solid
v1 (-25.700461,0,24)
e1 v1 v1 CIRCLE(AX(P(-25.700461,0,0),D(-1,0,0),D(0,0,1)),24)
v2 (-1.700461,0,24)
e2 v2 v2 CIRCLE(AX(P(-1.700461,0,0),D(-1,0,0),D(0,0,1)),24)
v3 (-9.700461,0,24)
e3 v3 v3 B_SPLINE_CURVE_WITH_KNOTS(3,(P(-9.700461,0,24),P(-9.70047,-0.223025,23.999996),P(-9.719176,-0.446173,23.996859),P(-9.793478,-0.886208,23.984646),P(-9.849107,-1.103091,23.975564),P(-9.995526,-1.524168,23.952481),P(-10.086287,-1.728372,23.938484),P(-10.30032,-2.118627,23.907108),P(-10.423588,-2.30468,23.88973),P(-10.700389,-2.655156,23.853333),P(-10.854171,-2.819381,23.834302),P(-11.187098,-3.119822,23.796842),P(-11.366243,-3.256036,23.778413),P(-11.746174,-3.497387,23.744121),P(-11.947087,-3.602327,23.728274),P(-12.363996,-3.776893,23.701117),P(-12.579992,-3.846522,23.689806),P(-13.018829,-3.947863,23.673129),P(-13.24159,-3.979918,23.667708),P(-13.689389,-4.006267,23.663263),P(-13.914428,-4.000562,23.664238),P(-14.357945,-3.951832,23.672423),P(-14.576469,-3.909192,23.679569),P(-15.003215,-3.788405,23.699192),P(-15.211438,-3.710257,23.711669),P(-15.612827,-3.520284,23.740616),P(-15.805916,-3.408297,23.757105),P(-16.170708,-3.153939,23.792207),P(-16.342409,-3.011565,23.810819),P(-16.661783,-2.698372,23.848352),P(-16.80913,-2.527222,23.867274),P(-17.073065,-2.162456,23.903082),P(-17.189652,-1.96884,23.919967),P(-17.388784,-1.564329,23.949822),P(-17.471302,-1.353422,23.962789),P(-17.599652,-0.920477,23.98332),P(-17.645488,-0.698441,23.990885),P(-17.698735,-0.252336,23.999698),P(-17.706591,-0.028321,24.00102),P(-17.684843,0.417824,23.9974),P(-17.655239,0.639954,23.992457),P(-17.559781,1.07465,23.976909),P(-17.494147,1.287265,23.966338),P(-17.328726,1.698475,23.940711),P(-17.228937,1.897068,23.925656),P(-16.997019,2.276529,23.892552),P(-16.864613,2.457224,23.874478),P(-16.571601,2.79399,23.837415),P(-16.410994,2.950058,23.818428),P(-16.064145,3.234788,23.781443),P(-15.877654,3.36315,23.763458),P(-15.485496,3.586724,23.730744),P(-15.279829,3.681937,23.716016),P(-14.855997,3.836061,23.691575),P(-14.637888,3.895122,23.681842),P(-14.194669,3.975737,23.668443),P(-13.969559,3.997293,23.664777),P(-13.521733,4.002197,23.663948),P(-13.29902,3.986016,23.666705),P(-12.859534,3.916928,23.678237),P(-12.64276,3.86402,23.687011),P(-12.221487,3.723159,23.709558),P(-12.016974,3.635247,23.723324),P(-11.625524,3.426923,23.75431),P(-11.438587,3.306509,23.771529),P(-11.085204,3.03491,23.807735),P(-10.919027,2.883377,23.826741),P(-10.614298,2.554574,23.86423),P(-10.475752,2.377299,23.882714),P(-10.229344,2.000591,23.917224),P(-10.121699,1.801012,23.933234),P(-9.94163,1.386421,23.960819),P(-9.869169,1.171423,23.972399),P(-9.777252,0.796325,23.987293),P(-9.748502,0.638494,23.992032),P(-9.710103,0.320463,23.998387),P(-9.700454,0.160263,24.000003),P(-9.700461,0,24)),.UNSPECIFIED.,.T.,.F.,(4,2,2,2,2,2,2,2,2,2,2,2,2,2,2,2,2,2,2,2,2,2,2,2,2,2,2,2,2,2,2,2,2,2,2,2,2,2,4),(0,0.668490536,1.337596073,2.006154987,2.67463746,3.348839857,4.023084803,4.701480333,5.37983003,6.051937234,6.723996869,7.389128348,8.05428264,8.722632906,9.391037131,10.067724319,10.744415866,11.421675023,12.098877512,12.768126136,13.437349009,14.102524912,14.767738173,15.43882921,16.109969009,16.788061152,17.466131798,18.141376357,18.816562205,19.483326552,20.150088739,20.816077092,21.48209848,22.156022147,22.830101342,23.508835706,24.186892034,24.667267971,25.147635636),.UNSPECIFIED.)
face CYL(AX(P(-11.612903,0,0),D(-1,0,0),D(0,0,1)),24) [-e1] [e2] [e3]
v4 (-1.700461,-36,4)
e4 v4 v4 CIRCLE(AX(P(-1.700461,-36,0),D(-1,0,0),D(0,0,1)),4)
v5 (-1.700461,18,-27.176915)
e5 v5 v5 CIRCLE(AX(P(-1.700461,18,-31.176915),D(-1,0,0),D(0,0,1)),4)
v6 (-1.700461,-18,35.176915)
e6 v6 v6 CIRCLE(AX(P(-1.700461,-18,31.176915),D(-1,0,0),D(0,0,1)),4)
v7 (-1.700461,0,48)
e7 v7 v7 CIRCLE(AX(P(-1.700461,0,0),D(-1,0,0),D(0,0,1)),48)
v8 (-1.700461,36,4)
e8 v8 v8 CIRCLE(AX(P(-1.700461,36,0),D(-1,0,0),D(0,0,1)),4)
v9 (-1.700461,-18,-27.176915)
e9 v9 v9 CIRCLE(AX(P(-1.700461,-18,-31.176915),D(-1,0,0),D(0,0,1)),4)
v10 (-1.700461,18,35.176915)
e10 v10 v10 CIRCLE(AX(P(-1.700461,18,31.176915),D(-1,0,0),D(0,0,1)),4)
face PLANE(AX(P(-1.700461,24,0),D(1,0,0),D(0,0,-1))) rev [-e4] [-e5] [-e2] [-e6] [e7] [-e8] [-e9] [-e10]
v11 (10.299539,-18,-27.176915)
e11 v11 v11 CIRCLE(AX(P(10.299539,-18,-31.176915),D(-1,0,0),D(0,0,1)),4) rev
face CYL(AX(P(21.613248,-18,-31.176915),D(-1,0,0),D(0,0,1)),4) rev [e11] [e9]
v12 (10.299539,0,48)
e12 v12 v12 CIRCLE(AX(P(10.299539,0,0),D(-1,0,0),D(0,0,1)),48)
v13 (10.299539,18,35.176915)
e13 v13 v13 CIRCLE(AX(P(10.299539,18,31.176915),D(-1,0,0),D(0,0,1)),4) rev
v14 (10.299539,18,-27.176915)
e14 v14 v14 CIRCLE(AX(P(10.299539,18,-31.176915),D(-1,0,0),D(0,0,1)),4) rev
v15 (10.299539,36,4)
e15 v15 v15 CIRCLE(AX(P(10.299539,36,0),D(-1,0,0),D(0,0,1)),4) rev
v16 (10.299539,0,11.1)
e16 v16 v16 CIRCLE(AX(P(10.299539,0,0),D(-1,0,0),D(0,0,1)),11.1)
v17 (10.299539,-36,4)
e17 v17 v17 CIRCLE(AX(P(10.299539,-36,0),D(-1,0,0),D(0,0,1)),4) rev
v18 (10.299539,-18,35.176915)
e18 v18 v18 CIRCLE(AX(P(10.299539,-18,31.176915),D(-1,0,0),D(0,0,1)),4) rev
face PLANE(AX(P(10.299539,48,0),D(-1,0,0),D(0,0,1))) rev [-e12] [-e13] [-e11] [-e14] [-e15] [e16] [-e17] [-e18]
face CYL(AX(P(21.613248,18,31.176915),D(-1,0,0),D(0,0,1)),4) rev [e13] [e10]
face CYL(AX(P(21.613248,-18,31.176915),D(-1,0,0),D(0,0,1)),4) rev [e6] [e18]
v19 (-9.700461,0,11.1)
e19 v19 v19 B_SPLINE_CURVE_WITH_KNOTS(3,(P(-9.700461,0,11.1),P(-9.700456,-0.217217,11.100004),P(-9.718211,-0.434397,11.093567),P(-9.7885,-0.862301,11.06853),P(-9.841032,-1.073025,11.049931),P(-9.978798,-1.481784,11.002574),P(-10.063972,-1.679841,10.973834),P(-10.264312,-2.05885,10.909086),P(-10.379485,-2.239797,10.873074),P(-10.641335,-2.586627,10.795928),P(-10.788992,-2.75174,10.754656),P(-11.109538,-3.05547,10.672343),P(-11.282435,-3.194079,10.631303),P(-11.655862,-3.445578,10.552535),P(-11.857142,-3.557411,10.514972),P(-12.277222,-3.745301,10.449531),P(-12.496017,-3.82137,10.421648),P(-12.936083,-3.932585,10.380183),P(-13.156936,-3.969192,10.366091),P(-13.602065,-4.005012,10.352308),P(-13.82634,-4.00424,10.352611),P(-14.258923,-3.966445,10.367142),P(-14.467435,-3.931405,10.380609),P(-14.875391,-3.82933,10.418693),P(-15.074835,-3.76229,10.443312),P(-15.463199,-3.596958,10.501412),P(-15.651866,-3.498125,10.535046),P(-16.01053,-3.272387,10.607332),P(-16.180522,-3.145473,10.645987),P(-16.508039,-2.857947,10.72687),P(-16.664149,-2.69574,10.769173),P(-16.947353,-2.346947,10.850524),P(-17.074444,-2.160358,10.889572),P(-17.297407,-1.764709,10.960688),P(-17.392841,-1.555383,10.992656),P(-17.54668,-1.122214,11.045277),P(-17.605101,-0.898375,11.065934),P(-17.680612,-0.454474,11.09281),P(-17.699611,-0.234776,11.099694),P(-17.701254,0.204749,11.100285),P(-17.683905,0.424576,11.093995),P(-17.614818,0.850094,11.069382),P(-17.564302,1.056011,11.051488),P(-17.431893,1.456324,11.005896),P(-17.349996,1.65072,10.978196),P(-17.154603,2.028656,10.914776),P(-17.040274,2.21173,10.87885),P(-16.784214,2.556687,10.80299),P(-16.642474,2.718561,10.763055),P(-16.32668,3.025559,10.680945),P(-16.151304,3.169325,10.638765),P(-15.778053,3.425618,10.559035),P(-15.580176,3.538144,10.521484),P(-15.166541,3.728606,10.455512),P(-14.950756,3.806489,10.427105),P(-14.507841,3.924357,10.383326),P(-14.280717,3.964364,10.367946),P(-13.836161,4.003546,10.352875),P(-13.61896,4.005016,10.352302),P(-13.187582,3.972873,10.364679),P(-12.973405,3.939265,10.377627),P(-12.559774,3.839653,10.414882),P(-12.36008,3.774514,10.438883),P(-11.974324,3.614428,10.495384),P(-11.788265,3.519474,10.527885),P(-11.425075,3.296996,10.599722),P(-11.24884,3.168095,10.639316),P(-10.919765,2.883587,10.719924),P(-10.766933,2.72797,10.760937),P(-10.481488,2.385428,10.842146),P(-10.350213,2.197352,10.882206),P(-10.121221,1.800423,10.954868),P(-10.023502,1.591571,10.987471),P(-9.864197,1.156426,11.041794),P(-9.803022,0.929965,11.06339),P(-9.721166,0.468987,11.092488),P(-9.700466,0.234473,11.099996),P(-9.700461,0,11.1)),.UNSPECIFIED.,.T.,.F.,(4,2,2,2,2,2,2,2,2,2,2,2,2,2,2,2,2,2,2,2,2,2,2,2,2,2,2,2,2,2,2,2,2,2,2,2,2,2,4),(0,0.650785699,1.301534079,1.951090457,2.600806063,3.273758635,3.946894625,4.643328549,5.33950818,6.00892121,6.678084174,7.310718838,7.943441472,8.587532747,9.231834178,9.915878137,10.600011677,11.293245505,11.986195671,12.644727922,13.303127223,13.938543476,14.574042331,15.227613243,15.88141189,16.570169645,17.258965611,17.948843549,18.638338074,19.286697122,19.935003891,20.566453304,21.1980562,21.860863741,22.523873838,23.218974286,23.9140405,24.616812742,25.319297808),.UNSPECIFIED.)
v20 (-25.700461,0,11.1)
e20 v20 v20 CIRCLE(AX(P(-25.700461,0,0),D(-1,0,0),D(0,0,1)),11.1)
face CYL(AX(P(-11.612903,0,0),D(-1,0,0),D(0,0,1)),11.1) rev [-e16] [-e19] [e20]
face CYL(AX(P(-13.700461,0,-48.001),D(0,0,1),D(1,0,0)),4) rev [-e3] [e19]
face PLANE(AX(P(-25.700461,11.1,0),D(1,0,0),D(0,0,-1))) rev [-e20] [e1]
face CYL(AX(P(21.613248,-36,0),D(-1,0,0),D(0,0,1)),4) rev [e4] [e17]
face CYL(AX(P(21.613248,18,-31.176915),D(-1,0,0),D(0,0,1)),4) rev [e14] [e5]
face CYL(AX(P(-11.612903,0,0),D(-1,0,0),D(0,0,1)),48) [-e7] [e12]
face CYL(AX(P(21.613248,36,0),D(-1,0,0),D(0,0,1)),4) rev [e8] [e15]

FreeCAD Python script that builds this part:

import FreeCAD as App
import Part
import Sketcher
Q = App.Units.Quantity

doc = App.newDocument("Part")
body = doc.addObject("PartDesign::Body", "Body")

# Sketch on XY plane
sketch1 = body.newObject("Sketcher::SketchObject", "Sketch")
sketch1.AttachmentSupport = (doc.getObject("XY_Plane"), [""])
sketch1.MapMode = "FlatFace"
sketch1.addGeometry([
    Part.LineSegment(App.Vector(-26, 24, 0), App.Vector(-26, 11, 0)),  # 0
    Part.LineSegment(App.Vector(-26, 11, 0), App.Vector(10, 11, 0)),  # 1
    Part.LineSegment(App.Vector(10, 11, 0), App.Vector(10, 48, 0)),  # 2
    Part.LineSegment(App.Vector(10, 48, 0), App.Vector(-2, 48, 0)),  # 3
    Part.LineSegment(App.Vector(-2, 48, 0), App.Vector(-2, 24, 0)),  # 4
    Part.LineSegment(App.Vector(-2, 24, 0), App.Vector(-26, 24, 0)),  # 5
], False)
sketch1.addConstraint([
    Sketcher.Constraint("Coincident", 0, 2, 1, 1),
    Sketcher.Constraint("Coincident", 1, 2, 2, 1),
    Sketcher.Constraint("Coincident", 2, 2, 3, 1),
    Sketcher.Constraint("Coincident", 3, 2, 4, 1),
    Sketcher.Constraint("Coincident", 4, 2, 5, 1),
    Sketcher.Constraint("Coincident", 5, 2, 0, 1),
    Sketcher.Constraint("Vertical", 0),
    Sketcher.Constraint("Horizontal", 1),
    Sketcher.Constraint("Vertical", 2),
    Sketcher.Constraint("Horizontal", 3),
    Sketcher.Constraint("Vertical", 4),
    Sketcher.Constraint("Horizontal", 5),
    Sketcher.Constraint("Equal", 5, 4),
    Sketcher.Constraint("DistanceX", 1, 1, 1, 2, Q("36 mm")),
    Sketcher.Constraint("DistanceX", 3, 2, 3, 1, Q("12 mm")),
    Sketcher.Constraint("DistanceY", 0, 2, 0, 1, Q("12.9 mm")),
    Sketcher.Constraint("DistanceY", -1, 1, 2, 2, Q("48 mm")),
    Sketcher.Constraint("DistanceX", 0, 2, -1, 1, Q("25.700461 mm")),
])
revolution = body.newObject("PartDesign::Revolution", "Revolution")
revolution.Profile = sketch1
revolution.ReferenceAxis = (sketch1, ["H_Axis"])
revolution.Angle = 360

# Sketch on YZ plane
sketch2 = body.newObject("Sketcher::SketchObject", "Sketch001")
sketch2.AttachmentSupport = (doc.getObject("YZ_Plane"), [""])
sketch2.MapMode = "FlatFace"
sketch2.AttachmentOffset = App.Placement(App.Vector(0, 0, -1.700461), App.Rotation())
sketch2.addGeometry([
    Part.Circle(App.Vector(36, 0, 0), App.Vector(0, 0, 1), 4),  # 0
    Part.Circle(App.Vector(18, 31.2, 0), App.Vector(0, 0, 1), 4),  # 1
    Part.Circle(App.Vector(-18, 31.2, 0), App.Vector(0, 0, 1), 4),  # 2
    Part.Circle(App.Vector(-36, 0, 0), App.Vector(0, 0, 1), 4),  # 3
    Part.Circle(App.Vector(-18, -31.2, 0), App.Vector(0, 0, 1), 4),  # 4
    Part.Circle(App.Vector(18, -31.2, 0), App.Vector(0, 0, 1), 4),  # 5
], False)
sketch2.addConstraint([
    Sketcher.Constraint("Equal", 0, 1),
    Sketcher.Constraint("Equal", 1, 2),
    Sketcher.Constraint("Equal", 2, 3),
    Sketcher.Constraint("Equal", 3, 4),
    Sketcher.Constraint("Equal", 4, 5),
    Sketcher.Constraint("Symmetric", 0, 3, 3, 3, -1, 1),
    Sketcher.Constraint("Symmetric", 1, 3, 4, 3, -1, 1),
    Sketcher.Constraint("Symmetric", 2, 3, 5, 3, -1, 1),
    Sketcher.Constraint("Symmetric", 1, 3, 2, 3, -2),
    Sketcher.Constraint("PointOnObject", 0, 3, -1),
    Sketcher.Constraint("Diameter", 0, Q("8 mm")),
    Sketcher.Constraint("DistanceX", -1, 1, 0, 3, Q("36 mm")),
    Sketcher.Constraint("DistanceX", -1, 1, 1, 3, Q("18 mm")),
    Sketcher.Constraint("DistanceY", 4, 3, 2, 3, Q("62.353829 mm")),
])
pocket1 = body.newObject("PartDesign::Pocket", "Pocket")
pocket1.Profile = sketch2
pocket1.Length = 12
pocket1.Reversed = True

# Sketch on XY plane
sketch3 = body.newObject("Sketcher::SketchObject", "Sketch002")
sketch3.AttachmentSupport = (doc.getObject("XY_Plane"), [""])
sketch3.MapMode = "FlatFace"
sketch3.AttachmentOffset = App.Placement(App.Vector(0, 0, 24), App.Rotation())
sketch3.addGeometry(Part.Circle(App.Vector(-13.7, 0, 0), App.Vector(0, 0, 1), 4), False)
sketch3.addConstraint([
    Sketcher.Constraint("PointOnObject", 0, 3, -1),
    Sketcher.Constraint("Diameter", 0, Q("8 mm")),
    Sketcher.Constraint("DistanceX", 0, 3, -1, 1, Q("13.700461 mm")),
])
pocket2 = body.newObject("PartDesign::Pocket", "Pocket001")
pocket2.Profile = sketch3
pocket2.Type = "UpToFirst"

doc.recompute()
